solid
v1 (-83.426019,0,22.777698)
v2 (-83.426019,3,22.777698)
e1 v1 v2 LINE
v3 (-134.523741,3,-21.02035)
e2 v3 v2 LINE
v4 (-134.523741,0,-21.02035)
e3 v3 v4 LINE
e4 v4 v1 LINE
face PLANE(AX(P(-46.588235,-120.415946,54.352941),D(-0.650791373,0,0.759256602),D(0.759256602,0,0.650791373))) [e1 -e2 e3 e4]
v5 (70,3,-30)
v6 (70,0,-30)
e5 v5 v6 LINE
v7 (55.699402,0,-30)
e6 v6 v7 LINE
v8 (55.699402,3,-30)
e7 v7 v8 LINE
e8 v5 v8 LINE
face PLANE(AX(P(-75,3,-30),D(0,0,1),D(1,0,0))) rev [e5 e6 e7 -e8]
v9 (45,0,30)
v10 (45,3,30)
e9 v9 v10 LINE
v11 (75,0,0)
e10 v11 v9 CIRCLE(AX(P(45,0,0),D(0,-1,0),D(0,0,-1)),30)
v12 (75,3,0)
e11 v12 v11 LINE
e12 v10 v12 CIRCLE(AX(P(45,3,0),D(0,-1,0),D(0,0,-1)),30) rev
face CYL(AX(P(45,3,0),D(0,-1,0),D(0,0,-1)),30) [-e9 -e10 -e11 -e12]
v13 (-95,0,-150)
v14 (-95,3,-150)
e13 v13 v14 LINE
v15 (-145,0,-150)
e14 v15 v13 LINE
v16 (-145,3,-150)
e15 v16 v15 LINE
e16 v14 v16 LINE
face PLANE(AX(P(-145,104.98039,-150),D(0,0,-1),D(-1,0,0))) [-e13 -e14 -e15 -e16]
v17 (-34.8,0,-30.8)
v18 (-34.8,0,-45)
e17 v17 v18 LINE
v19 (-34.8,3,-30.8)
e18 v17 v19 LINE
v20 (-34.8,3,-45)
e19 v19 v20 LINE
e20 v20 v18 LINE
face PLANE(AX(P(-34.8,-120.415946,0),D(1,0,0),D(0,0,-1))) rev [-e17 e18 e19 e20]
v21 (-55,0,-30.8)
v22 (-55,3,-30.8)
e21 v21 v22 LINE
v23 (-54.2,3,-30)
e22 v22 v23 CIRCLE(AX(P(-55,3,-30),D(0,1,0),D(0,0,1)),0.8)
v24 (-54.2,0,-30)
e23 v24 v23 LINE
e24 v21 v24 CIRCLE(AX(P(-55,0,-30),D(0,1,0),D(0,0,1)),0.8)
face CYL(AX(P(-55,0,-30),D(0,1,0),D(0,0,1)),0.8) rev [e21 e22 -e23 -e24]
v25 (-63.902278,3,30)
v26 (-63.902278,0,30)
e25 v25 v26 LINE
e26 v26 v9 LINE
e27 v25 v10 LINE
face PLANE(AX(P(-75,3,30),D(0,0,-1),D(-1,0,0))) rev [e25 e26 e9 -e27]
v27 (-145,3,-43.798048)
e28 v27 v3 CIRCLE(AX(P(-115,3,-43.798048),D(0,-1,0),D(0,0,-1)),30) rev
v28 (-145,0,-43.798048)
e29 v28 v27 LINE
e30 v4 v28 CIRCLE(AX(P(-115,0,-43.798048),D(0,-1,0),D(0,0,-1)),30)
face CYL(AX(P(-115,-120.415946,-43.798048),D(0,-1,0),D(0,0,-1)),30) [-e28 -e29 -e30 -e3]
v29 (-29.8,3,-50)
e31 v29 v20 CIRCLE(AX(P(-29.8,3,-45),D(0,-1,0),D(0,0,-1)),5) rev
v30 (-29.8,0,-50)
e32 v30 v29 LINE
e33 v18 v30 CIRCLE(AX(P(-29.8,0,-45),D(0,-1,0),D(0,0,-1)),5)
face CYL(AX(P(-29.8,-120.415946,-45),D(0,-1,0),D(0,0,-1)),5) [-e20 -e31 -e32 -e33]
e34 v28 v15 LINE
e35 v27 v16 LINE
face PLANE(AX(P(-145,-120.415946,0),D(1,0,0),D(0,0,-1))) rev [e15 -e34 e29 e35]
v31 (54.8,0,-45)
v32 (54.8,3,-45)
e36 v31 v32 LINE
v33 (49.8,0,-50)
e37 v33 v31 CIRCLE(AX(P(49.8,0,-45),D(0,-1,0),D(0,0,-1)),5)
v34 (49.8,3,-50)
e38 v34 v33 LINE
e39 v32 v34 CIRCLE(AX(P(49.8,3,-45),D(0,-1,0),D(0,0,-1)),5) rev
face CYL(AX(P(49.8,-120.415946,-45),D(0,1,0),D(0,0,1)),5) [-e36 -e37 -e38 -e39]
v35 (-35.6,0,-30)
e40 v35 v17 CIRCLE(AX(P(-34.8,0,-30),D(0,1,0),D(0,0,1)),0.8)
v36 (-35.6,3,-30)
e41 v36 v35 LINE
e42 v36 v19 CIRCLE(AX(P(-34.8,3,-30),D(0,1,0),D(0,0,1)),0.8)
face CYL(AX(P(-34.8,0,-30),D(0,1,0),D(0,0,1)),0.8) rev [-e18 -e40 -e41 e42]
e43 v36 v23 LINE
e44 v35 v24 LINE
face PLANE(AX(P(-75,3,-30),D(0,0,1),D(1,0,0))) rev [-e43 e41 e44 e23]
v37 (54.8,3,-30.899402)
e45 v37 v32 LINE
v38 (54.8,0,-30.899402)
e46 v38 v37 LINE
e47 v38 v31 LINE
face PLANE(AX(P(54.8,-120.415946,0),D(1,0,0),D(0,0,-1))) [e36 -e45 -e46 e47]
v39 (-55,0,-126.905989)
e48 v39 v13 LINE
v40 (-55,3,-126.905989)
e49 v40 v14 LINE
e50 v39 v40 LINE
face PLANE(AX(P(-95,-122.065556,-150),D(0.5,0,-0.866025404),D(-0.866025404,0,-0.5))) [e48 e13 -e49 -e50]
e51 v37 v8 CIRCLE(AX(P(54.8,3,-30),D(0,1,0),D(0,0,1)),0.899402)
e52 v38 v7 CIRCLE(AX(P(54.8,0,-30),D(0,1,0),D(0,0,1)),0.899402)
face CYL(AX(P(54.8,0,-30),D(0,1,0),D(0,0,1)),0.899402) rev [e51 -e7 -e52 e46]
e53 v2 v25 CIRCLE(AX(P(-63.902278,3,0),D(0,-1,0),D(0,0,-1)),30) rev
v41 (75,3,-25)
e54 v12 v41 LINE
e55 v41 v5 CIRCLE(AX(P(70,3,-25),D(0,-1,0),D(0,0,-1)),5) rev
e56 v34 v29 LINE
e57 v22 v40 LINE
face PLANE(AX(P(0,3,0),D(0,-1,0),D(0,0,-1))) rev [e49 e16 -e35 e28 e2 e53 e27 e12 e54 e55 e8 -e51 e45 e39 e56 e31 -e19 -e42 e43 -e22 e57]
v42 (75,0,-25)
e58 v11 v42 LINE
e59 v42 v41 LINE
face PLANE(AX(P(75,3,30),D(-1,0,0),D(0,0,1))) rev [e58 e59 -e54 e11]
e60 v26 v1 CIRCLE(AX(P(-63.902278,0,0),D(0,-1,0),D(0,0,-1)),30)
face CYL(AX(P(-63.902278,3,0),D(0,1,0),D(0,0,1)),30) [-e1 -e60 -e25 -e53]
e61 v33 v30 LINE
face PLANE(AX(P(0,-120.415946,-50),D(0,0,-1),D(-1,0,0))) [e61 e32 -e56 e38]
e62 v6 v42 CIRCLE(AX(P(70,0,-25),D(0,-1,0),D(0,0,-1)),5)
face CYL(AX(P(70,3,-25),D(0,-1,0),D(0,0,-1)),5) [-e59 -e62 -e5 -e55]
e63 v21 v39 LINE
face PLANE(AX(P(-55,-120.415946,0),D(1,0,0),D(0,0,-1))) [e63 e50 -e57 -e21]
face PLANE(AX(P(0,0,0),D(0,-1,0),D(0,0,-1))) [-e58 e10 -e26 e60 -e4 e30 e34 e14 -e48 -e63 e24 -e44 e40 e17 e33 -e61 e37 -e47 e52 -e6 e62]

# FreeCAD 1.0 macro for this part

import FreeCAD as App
import Part
import Sketcher
from FreeCAD import Vector
Q = App.Units.Quantity


def edges_at(feature, points):
    """Names of the edges that pass closest to the given points."""
    edges = feature.Shape.Edges
    near = lambda p: min(range(len(edges)), key=lambda i: edges[i].distToShape(Part.Vertex(*p))[0])
    return sorted({f"Edge{near(p) + 1}" for p in points})

doc = App.newDocument("Part")
body = doc.addObject("PartDesign::Body", "Body")

# Sketch on XZ plane
sketch1 = doc.addObject("Sketcher::SketchObject", "Sketch")
body.addObject(sketch1)
sketch1.AttachmentSupport = (doc.XZ_Plane, [""])
sketch1.MapMode = "FlatFace"
sketch1.addGeometry([
    Part.LineSegment(Vector(-75, -30, 0), Vector(-75, 30, 0)),
    Part.LineSegment(Vector(-75, 30, 0), Vector(75, 30, 0)),
    Part.LineSegment(Vector(75, 30, 0), Vector(75, -30, 0)),
    Part.LineSegment(Vector(75, -30, 0), Vector(-75, -30, 0)),
], False)
sketch1.addConstraint([
    Sketcher.Constraint("Coincident", 0, 2, 1, 1),
    Sketcher.Constraint("Coincident", 1, 2, 2, 1),
    Sketcher.Constraint("Coincident", 2, 2, 3, 1),
    Sketcher.Constraint("Coincident", 3, 2, 0, 1),
    Sketcher.Constraint("Vertical", 0),
    Sketcher.Constraint("Horizontal", 1),
    Sketcher.Constraint("Vertical", 2),
    Sketcher.Constraint("Horizontal", 3),
    Sketcher.Constraint("Symmetric", 0, 2, 2, 2, -1, 1),
    Sketcher.Constraint("DistanceX", 1, 1, 1, 2, 150.0),
    Sketcher.Constraint("DistanceY", 0, 1, 0, 2, 60.0),
])
pad1 = doc.addObject("PartDesign::Pad", "Pad")
body.addObject(pad1)
pad1.Profile = sketch1
pad1.Length = 3
pad1.Reversed = True
doc.recompute()

fillet = doc.addObject("PartDesign::Fillet", "Fillet")
body.addObject(fillet)
fillet.Base = (pad1, edges_at(pad1, [(75, 1.5, 30)]))
fillet.Radius = 30

# Sketch on XZ plane
sketch2 = doc.addObject("Sketcher::SketchObject", "Sketch001")
body.addObject(sketch2)
sketch2.AttachmentSupport = (doc.XZ_Plane, [""])
sketch2.MapMode = "FlatFace"
sketch2.AttachmentOffset = App.Placement(Vector(0, 0, -3), App.Rotation())
sketch2.addGeometry([
    Part.LineSegment(Vector(-55, -30, 0), Vector(-55, -50, 0)),  # 0
    Part.LineSegment(Vector(-55, -50, 0), Vector(-145, -50, 0)),  # 1
    Part.LineSegment(Vector(-145, -50, 0), Vector(-145, -30, 0)),  # 2
    Part.LineSegment(Vector(-145, -30, 0), Vector(-75, 30, 0)),  # 3
    Part.LineSegment(Vector(-75, 30, 0), Vector(-75, -30, 0)),  # 4
    Part.LineSegment(Vector(-75, -30, 0), Vector(-55, -30, 0)),  # 5
    Part.LineSegment(Vector(-34.8, -50, 0), Vector(-34.8, -30, 0)),  # 6
    Part.LineSegment(Vector(-34.8, -30, 0), Vector(54.8, -30, 0)),  # 7
    Part.LineSegment(Vector(54.8, -30, 0), Vector(54.8, -50, 0)),  # 8
    Part.LineSegment(Vector(54.8, -50, 0), Vector(-34.8, -50, 0)),  # 9
], False)
sketch2.addConstraint([
    Sketcher.Constraint("Coincident", 0, 2, 1, 1),
    Sketcher.Constraint("Coincident", 1, 2, 2, 1),
    Sketcher.Constraint("Coincident", 2, 2, 3, 1),
    Sketcher.Constraint("Coincident", 3, 2, 4, 1),
    Sketcher.Constraint("Coincident", 4, 2, 5, 1),
    Sketcher.Constraint("Coincident", 5, 2, 0, 1),
    Sketcher.Constraint("Coincident", 6, 2, 7, 1),
    Sketcher.Constraint("Coincident", 7, 2, 8, 1),
    Sketcher.Constraint("Coincident", 8, 2, 9, 1),
    Sketcher.Constraint("Coincident", 9, 2, 6, 1),
    Sketcher.Constraint("Vertical", 0),
    Sketcher.Constraint("Horizontal", 1),
    Sketcher.Constraint("Vertical", 2),
    Sketcher.Constraint("Vertical", 4),
    Sketcher.Constraint("Horizontal", 5),
    Sketcher.Constraint("Vertical", 6),
    Sketcher.Constraint("Horizontal", 7),
    Sketcher.Constraint("Vertical", 8),
    Sketcher.Constraint("Horizontal", 9),
    Sketcher.Constraint("Horizontal", 2, 2, 4, 2),
    Sketcher.Constraint("Horizontal", 5, 2, 6, 2),
    Sketcher.Constraint("Horizontal", 1, 2, 8, 2),
    Sketcher.Constraint("Equal", 5, 0),
    Sketcher.Constraint("DistanceX", 1, 2, 1, 1, 90.0),
    Sketcher.Constraint("DistanceX", 5, 1, 5, 2, 20.0),
    Sketcher.Constraint("DistanceY", 4, 2, 4, 1, 60.0),
    Sketcher.Constraint("DistanceX", 7, 1, 7, 2, 89.6),
    Sketcher.Constraint("DistanceX", 0, 2, -1, 1, 55.0),
    Sketcher.Constraint("DistanceY", 0, 2, -1, 1, 50.0),
    Sketcher.Constraint("DistanceX", 6, 2, -1, 1, 34.8),
])
pad2 = doc.addObject("PartDesign::Pad", "Pad001")
body.addObject(pad2)
pad2.Profile = sketch2
pad2.Length = 3
doc.recompute()

fillet2 = doc.addObject("PartDesign::Fillet", "Fillet001")
body.addObject(fillet2)
fillet2.Base = (pad2, edges_at(pad2, [(-145, 1.5, -30), (-75, 1.5, 30)]))
fillet2.Radius = 30

# Sketch on XZ plane
sketch3 = doc.addObject("Sketcher::SketchObject", "Sketch002")
body.addObject(sketch3)
sketch3.AttachmentSupport = (doc.XZ_Plane, [""])
sketch3.MapMode = "FlatFace"
sketch3.AttachmentOffset = App.Placement(Vector(0, 0, -3), App.Rotation())
sketch3.addGeometry([
    Part.Circle(Vector(-55, -30, 0), Vector(0, 0, 1), 0.8),
    Part.Circle(Vector(-34.8, -30, 0), Vector(0, 0, 1), 0.8),
    Part.Circle(Vector(54.8, -30, 0), Vector(0, 0, 1), 0.899402),
], False)
sketch3.addConstraint([
    Sketcher.Constraint("Equal", 0, 1),
    Sketcher.Constraint("Horizontal", 0, 3, 1, 3),
    Sketcher.Constraint("Horizontal", 1, 3, 2, 3),
    Sketcher.Constraint("Diameter", 0, 1.6),
    Sketcher.Constraint("DistanceX", 0, 3, -1, 1, 55.0),
    Sketcher.Constraint("DistanceY", 0, 3, -1, 1, 30.0),
    Sketcher.Constraint("DistanceX", 1, 3, -1, 1, 34.8),
    Sketcher.Constraint("DistanceX", -1, 1, 2, 3, 54.8),
    Sketcher.Constraint("Diameter", 2, 1.798804),
])
pocket1 = doc.addObject("PartDesign::Pocket", "Pocket")
body.addObject(pocket1)
pocket1.Profile = sketch3
pocket1.Type = "ThroughAll"
pocket1.Reversed = True
doc.recompute()

fillet3 = doc.addObject("PartDesign::Fillet", "Fillet002")
body.addObject(fillet3)
fillet3.Base = (pocket1, edges_at(pocket1, [(-34.8, 1.5, -50), (54.8, 1.5, -50), (75, 1.5, -30)]))
fillet3.Radius = 5

# Sketch on XZ plane
sketch4 = doc.addObject("Sketcher::SketchObject", "Sketch003")
body.addObject(sketch4)
sketch4.AttachmentSupport = (doc.XZ_Plane, [""])
sketch4.MapMode = "FlatFace"
sketch4.addGeometry([
    Part.LineSegment(Vector(-125, -150, 0), Vector(-125, -50, 0)),
    Part.LineSegment(Vector(-125, -50, 0), Vector(-145, -50, 0)),
    Part.LineSegment(Vector(-145, -50, 0), Vector(-145, -150, 0)),
    Part.LineSegment(Vector(-145, -150, 0), Vector(-125, -150, 0)),
], False)
sketch4.addConstraint([
    Sketcher.Constraint("Coincident", 0, 2, 1, 1),
    Sketcher.Constraint("Coincident", 1, 2, 2, 1),
    Sketcher.Constraint("Coincident", 2, 2, 3, 1),
    Sketcher.Constraint("Coincident", 3, 2, 0, 1),
    Sketcher.Constraint("Vertical", 0),
    Sketcher.Constraint("Horizontal", 1),
    Sketcher.Constraint("Vertical", 2),
    Sketcher.Constraint("Horizontal", 3),
    Sketcher.Constraint("DistanceX", 1, 2, 1, 1, 20.0),
    Sketcher.Constraint("DistanceY", 0, 1, 0, 2, 100.0),
    Sketcher.Constraint("DistanceX", 0, 2, -1, 1, 125.0),
    Sketcher.Constraint("DistanceY", 0, 2, -1, 1, 50.0),
])
pad3 = doc.addObject("PartDesign::Pad", "Pad002")
body.addObject(pad3)
pad3.Profile = sketch4
pad3.Length = 3
pad3.Reversed = True

# Sketch on XZ plane
sketch5 = doc.addObject("Sketcher::SketchObject", "Sketch004")
body.addObject(sketch5)
sketch5.AttachmentSupport = (doc.XZ_Plane, [""])
sketch5.MapMode = "FlatFace"
sketch5.AttachmentOffset = App.Placement(Vector(0, 0, -3), App.Rotation())
sketch5.addGeometry([
    Part.LineSegment(Vector(-125, -50, 0), Vector(-55, -50, 0)),  # 0
    Part.LineSegment(Vector(-55, -50, 0), Vector(-55, -126.905989, 0)),  # 1
    Part.LineSegment(Vector(-55, -126.905989, 0), Vector(-95, -150, 0)),  # 2
    Part.LineSegment(Vector(-95, -150, 0), Vector(-125, -150, 0)),  # 3
    Part.LineSegment(Vector(-125, -150, 0), Vector(-125, -50, 0)),  # 4
], False)
sketch5.addConstraint([
    Sketcher.Constraint("Coincident", 0, 2, 1, 1),
    Sketcher.Constraint("Coincident", 1, 2, 2, 1),
    Sketcher.Constraint("Coincident", 2, 2, 3, 1),
    Sketcher.Constraint("Coincident", 3, 2, 4, 1),
    Sketcher.Constraint("Coincident", 4, 2, 0, 1),
    Sketcher.Constraint("Horizontal", 0),
    Sketcher.Constraint("Vertical", 1),
    Sketcher.Constraint("Horizontal", 3),
    Sketcher.Constraint("Vertical", 4),
    Sketcher.Constraint("DistanceX", 0, 1, 0, 2, 70.0),
    Sketcher.Constraint("DistanceX", 3, 2, 3, 1, 30.0),
    Sketcher.Constraint("DistanceY", 4, 1, 4, 2, 100.0),
    Sketcher.Constraint("Angle", 2, Q("-150 deg")),
    Sketcher.Constraint("DistanceX", 0, 2, -1, 1, 55.0),
    Sketcher.Constraint("DistanceY", 0, 2, -1, 1, 50.0),
])
pad4 = doc.addObject("PartDesign::Pad", "Pad003")
body.addObject(pad4)
pad4.Profile = sketch5
pad4.Length = 3

doc.recompute()
